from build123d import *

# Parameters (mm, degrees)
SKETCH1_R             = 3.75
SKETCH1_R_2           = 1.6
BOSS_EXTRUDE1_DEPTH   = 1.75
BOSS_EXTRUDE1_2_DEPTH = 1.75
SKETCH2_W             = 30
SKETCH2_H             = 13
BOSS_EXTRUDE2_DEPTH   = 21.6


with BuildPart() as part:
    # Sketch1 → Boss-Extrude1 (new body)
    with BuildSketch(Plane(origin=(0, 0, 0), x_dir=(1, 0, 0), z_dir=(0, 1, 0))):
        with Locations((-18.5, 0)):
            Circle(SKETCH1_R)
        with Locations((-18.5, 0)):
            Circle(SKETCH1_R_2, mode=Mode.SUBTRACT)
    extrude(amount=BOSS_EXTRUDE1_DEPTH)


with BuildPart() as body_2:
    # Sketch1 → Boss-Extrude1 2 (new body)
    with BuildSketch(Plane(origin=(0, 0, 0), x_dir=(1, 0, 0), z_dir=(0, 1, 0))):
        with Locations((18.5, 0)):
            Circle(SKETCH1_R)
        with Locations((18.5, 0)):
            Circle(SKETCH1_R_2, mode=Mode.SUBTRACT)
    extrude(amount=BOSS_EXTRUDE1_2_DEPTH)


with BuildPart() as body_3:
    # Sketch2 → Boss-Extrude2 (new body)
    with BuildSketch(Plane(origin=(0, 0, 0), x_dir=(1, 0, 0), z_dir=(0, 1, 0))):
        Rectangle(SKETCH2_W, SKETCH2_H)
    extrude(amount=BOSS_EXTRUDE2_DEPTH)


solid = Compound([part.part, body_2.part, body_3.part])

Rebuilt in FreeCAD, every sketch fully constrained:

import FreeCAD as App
import Part
import Sketcher

V = App.Vector
Q = App.Units.Quantity

doc = App.newDocument("Part")
params = doc.addObject("Spreadsheet::Sheet", "Params")
for row, (alias, value) in enumerate([
    ("sketch1_diameter", "7.5 mm"),
    ("sketch1_diameter2", "3.2 mm"),
    ("pad1_length", "1.75 mm"),
    ("sketch2_diameter", "7.5 mm"),
    ("sketch2_diameter2", "3.2 mm"),
    ("pad2_length", "1.75 mm"),
    ("sketch3_width", "30 mm"),
    ("sketch3_height", "13 mm"),
    ("pad3_length", "21.6 mm"),
], start=1):
    params.set(f"A{row}", alias)
    params.set(f"B{row}", "=" + value)
    params.setAlias(f"B{row}", alias)

body = doc.addObject("PartDesign::Body", "Body")

# Sketch on XZ plane
sketch1 = body.newObject("Sketcher::SketchObject", "Sketch")
sketch1.AttachmentSupport = (doc.getObject("XZ_Plane"), [""])
sketch1.MapMode = "FlatFace"
sketch1.addGeometry([
    Part.Circle(V(-18.5, 0, 0), V(0, 0, 1), 3.8),
    Part.Circle(V(-18.5, 0, 0), V(0, 0, 1), 1.6),
], False)
sketch1.addConstraint([
    Sketcher.Constraint("Coincident", 1, 3, 0, 3),
    Sketcher.Constraint("PointOnObject", 0, 3, -1),
    Sketcher.Constraint("Diameter", 0, Q("7.5 mm")),
    Sketcher.Constraint("Diameter", 1, Q("3.2 mm")),
    Sketcher.Constraint("DistanceX", 0, 3, -1, 1, Q("18.5 mm")),
])
sketch1.setExpression("Constraints[2]", "Params.sketch1_diameter")
sketch1.setExpression("Constraints[3]", "Params.sketch1_diameter2")
pad1 = body.newObject("PartDesign::Pad", "Pad")
pad1.Profile = sketch1
pad1.setExpression("Length", "Params.pad1_length")
pad1.Reversed = True
body2 = doc.addObject("PartDesign::Body", "Body001")

# Sketch on XZ plane
sketch2 = body2.newObject("Sketcher::SketchObject", "Sketch001")
sketch2.AttachmentSupport = (doc.getObject("XZ_Plane001"), [""])
sketch2.MapMode = "FlatFace"
sketch2.addGeometry([
    Part.Circle(V(18.5, 0, 0), V(0, 0, 1), 3.8),
    Part.Circle(V(18.5, 0, 0), V(0, 0, 1), 1.6),
], False)
sketch2.addConstraint([
    Sketcher.Constraint("Coincident", 1, 3, 0, 3),
    Sketcher.Constraint("PointOnObject", 0, 3, -1),
    Sketcher.Constraint("Diameter", 0, Q("7.5 mm")),
    Sketcher.Constraint("Diameter", 1, Q("3.2 mm")),
    Sketcher.Constraint("DistanceX", -1, 1, 0, 3, Q("18.5 mm")),
])
sketch2.setExpression("Constraints[2]", "Params.sketch2_diameter")
sketch2.setExpression("Constraints[3]", "Params.sketch2_diameter2")
pad2 = body2.newObject("PartDesign::Pad", "Pad001")
pad2.Profile = sketch2
pad2.setExpression("Length", "Params.pad2_length")
pad2.Reversed = True
body3 = doc.addObject("PartDesign::Body", "Body002")

# Sketch on XZ plane
sketch3 = body3.newObject("Sketcher::SketchObject", "Sketch002")
sketch3.AttachmentSupport = (doc.getObject("XZ_Plane002"), [""])
sketch3.MapMode = "FlatFace"
sketch3.addGeometry([
    Part.LineSegment(V(-15, -6, 0), V(-15, 6, 0)),
    Part.LineSegment(V(-15, 6, 0), V(15, 6, 0)),
    Part.LineSegment(V(15, 6, 0), V(15, -6, 0)),
    Part.LineSegment(V(15, -6, 0), V(-15, -6, 0)),
], False)
sketch3.addConstraint([
    Sketcher.Constraint("Coincident", 0, 2, 1, 1),
    Sketcher.Constraint("Coincident", 1, 2, 2, 1),
    Sketcher.Constraint("Coincident", 2, 2, 3, 1),
    Sketcher.Constraint("Coincident", 3, 2, 0, 1),
    Sketcher.Constraint("Vertical", 0),
    Sketcher.Constraint("Horizontal", 1),
    Sketcher.Constraint("Vertical", 2),
    Sketcher.Constraint("Horizontal", 3),
    Sketcher.Constraint("Symmetric", 0, 2, 2, 2, -1, 1),
    Sketcher.Constraint("DistanceX", 1, 1, 1, 2, Q("30 mm")),
    Sketcher.Constraint("DistanceY", 0, 1, 0, 2, Q("13 mm")),
])
sketch3.setExpression("Constraints[9]", "Params.sketch3_width")
sketch3.setExpression("Constraints[10]", "Params.sketch3_height")
pad3 = body3.newObject("PartDesign::Pad", "Pad002")
pad3.Profile = sketch3
pad3.setExpression("Length", "Params.pad3_length")
pad3.Reversed = True

doc.recompute()
